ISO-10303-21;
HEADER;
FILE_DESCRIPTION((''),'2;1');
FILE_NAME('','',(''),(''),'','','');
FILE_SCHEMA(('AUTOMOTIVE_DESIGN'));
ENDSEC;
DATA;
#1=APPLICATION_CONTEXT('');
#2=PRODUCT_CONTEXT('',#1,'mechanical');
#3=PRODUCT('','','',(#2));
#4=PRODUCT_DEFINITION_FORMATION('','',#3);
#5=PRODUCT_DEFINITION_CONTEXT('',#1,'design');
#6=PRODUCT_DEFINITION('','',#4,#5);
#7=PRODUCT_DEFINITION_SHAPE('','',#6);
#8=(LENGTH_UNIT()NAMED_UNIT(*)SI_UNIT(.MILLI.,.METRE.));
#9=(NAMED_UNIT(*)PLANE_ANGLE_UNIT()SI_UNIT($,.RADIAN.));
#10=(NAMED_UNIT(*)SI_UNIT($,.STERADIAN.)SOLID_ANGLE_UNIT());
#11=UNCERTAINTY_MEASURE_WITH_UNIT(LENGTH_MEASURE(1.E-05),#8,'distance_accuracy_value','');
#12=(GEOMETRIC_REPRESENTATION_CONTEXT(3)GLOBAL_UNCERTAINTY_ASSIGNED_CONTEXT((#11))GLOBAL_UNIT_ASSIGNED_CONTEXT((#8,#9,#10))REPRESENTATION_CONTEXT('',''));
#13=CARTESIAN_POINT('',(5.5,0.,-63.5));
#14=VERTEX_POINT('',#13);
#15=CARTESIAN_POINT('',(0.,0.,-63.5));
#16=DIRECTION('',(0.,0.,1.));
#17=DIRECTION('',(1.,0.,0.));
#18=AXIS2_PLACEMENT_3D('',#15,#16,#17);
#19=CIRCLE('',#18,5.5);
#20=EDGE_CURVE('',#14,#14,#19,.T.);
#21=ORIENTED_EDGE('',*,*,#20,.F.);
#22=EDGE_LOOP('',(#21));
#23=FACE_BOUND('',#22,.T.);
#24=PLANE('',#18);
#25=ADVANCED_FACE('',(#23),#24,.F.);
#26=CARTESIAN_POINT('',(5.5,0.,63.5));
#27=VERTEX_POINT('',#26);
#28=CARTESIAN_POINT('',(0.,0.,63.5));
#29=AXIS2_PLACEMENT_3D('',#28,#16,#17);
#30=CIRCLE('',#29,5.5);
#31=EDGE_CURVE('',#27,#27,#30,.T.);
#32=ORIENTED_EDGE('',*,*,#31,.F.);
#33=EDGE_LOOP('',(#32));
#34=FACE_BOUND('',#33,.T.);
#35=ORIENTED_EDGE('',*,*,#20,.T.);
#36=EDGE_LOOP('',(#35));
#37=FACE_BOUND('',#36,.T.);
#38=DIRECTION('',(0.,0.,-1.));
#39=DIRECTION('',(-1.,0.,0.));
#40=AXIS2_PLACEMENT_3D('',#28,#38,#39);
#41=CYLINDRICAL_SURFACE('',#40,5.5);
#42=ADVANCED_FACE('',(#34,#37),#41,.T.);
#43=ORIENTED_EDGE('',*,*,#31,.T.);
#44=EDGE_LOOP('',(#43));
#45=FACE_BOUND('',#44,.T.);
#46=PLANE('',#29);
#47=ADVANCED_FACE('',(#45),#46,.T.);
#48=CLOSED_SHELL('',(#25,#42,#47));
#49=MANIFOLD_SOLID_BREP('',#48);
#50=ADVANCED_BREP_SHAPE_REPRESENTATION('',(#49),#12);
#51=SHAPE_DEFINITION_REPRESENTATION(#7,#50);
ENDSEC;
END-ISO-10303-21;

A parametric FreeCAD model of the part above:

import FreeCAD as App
import Part
import Sketcher
from FreeCAD import Vector

doc = App.newDocument("Part")
body = doc.addObject("PartDesign::Body", "Body")

# Sketch on XY plane
sketch1 = doc.addObject("Sketcher::SketchObject", "Sketch")
body.addObject(sketch1)
sketch1.AttachmentSupport = (doc.XY_Plane, [""])
sketch1.MapMode = "FlatFace"
sketch1.addGeometry(Part.Circle(Vector(0, 0, 0), Vector(0, 0, 1), 6), False)
sketch1.addConstraint(Sketcher.Constraint("Coincident", 0, 3, -1, 1))
sketch1.addConstraint(Sketcher.Constraint("Diameter", 0, 11.0))
pad1 = doc.addObject("PartDesign::Pad", "Pad")
body.addObject(pad1)
pad1.Profile = sketch1
pad1.Length = 127
pad1.Midplane = True

doc.recompute()
